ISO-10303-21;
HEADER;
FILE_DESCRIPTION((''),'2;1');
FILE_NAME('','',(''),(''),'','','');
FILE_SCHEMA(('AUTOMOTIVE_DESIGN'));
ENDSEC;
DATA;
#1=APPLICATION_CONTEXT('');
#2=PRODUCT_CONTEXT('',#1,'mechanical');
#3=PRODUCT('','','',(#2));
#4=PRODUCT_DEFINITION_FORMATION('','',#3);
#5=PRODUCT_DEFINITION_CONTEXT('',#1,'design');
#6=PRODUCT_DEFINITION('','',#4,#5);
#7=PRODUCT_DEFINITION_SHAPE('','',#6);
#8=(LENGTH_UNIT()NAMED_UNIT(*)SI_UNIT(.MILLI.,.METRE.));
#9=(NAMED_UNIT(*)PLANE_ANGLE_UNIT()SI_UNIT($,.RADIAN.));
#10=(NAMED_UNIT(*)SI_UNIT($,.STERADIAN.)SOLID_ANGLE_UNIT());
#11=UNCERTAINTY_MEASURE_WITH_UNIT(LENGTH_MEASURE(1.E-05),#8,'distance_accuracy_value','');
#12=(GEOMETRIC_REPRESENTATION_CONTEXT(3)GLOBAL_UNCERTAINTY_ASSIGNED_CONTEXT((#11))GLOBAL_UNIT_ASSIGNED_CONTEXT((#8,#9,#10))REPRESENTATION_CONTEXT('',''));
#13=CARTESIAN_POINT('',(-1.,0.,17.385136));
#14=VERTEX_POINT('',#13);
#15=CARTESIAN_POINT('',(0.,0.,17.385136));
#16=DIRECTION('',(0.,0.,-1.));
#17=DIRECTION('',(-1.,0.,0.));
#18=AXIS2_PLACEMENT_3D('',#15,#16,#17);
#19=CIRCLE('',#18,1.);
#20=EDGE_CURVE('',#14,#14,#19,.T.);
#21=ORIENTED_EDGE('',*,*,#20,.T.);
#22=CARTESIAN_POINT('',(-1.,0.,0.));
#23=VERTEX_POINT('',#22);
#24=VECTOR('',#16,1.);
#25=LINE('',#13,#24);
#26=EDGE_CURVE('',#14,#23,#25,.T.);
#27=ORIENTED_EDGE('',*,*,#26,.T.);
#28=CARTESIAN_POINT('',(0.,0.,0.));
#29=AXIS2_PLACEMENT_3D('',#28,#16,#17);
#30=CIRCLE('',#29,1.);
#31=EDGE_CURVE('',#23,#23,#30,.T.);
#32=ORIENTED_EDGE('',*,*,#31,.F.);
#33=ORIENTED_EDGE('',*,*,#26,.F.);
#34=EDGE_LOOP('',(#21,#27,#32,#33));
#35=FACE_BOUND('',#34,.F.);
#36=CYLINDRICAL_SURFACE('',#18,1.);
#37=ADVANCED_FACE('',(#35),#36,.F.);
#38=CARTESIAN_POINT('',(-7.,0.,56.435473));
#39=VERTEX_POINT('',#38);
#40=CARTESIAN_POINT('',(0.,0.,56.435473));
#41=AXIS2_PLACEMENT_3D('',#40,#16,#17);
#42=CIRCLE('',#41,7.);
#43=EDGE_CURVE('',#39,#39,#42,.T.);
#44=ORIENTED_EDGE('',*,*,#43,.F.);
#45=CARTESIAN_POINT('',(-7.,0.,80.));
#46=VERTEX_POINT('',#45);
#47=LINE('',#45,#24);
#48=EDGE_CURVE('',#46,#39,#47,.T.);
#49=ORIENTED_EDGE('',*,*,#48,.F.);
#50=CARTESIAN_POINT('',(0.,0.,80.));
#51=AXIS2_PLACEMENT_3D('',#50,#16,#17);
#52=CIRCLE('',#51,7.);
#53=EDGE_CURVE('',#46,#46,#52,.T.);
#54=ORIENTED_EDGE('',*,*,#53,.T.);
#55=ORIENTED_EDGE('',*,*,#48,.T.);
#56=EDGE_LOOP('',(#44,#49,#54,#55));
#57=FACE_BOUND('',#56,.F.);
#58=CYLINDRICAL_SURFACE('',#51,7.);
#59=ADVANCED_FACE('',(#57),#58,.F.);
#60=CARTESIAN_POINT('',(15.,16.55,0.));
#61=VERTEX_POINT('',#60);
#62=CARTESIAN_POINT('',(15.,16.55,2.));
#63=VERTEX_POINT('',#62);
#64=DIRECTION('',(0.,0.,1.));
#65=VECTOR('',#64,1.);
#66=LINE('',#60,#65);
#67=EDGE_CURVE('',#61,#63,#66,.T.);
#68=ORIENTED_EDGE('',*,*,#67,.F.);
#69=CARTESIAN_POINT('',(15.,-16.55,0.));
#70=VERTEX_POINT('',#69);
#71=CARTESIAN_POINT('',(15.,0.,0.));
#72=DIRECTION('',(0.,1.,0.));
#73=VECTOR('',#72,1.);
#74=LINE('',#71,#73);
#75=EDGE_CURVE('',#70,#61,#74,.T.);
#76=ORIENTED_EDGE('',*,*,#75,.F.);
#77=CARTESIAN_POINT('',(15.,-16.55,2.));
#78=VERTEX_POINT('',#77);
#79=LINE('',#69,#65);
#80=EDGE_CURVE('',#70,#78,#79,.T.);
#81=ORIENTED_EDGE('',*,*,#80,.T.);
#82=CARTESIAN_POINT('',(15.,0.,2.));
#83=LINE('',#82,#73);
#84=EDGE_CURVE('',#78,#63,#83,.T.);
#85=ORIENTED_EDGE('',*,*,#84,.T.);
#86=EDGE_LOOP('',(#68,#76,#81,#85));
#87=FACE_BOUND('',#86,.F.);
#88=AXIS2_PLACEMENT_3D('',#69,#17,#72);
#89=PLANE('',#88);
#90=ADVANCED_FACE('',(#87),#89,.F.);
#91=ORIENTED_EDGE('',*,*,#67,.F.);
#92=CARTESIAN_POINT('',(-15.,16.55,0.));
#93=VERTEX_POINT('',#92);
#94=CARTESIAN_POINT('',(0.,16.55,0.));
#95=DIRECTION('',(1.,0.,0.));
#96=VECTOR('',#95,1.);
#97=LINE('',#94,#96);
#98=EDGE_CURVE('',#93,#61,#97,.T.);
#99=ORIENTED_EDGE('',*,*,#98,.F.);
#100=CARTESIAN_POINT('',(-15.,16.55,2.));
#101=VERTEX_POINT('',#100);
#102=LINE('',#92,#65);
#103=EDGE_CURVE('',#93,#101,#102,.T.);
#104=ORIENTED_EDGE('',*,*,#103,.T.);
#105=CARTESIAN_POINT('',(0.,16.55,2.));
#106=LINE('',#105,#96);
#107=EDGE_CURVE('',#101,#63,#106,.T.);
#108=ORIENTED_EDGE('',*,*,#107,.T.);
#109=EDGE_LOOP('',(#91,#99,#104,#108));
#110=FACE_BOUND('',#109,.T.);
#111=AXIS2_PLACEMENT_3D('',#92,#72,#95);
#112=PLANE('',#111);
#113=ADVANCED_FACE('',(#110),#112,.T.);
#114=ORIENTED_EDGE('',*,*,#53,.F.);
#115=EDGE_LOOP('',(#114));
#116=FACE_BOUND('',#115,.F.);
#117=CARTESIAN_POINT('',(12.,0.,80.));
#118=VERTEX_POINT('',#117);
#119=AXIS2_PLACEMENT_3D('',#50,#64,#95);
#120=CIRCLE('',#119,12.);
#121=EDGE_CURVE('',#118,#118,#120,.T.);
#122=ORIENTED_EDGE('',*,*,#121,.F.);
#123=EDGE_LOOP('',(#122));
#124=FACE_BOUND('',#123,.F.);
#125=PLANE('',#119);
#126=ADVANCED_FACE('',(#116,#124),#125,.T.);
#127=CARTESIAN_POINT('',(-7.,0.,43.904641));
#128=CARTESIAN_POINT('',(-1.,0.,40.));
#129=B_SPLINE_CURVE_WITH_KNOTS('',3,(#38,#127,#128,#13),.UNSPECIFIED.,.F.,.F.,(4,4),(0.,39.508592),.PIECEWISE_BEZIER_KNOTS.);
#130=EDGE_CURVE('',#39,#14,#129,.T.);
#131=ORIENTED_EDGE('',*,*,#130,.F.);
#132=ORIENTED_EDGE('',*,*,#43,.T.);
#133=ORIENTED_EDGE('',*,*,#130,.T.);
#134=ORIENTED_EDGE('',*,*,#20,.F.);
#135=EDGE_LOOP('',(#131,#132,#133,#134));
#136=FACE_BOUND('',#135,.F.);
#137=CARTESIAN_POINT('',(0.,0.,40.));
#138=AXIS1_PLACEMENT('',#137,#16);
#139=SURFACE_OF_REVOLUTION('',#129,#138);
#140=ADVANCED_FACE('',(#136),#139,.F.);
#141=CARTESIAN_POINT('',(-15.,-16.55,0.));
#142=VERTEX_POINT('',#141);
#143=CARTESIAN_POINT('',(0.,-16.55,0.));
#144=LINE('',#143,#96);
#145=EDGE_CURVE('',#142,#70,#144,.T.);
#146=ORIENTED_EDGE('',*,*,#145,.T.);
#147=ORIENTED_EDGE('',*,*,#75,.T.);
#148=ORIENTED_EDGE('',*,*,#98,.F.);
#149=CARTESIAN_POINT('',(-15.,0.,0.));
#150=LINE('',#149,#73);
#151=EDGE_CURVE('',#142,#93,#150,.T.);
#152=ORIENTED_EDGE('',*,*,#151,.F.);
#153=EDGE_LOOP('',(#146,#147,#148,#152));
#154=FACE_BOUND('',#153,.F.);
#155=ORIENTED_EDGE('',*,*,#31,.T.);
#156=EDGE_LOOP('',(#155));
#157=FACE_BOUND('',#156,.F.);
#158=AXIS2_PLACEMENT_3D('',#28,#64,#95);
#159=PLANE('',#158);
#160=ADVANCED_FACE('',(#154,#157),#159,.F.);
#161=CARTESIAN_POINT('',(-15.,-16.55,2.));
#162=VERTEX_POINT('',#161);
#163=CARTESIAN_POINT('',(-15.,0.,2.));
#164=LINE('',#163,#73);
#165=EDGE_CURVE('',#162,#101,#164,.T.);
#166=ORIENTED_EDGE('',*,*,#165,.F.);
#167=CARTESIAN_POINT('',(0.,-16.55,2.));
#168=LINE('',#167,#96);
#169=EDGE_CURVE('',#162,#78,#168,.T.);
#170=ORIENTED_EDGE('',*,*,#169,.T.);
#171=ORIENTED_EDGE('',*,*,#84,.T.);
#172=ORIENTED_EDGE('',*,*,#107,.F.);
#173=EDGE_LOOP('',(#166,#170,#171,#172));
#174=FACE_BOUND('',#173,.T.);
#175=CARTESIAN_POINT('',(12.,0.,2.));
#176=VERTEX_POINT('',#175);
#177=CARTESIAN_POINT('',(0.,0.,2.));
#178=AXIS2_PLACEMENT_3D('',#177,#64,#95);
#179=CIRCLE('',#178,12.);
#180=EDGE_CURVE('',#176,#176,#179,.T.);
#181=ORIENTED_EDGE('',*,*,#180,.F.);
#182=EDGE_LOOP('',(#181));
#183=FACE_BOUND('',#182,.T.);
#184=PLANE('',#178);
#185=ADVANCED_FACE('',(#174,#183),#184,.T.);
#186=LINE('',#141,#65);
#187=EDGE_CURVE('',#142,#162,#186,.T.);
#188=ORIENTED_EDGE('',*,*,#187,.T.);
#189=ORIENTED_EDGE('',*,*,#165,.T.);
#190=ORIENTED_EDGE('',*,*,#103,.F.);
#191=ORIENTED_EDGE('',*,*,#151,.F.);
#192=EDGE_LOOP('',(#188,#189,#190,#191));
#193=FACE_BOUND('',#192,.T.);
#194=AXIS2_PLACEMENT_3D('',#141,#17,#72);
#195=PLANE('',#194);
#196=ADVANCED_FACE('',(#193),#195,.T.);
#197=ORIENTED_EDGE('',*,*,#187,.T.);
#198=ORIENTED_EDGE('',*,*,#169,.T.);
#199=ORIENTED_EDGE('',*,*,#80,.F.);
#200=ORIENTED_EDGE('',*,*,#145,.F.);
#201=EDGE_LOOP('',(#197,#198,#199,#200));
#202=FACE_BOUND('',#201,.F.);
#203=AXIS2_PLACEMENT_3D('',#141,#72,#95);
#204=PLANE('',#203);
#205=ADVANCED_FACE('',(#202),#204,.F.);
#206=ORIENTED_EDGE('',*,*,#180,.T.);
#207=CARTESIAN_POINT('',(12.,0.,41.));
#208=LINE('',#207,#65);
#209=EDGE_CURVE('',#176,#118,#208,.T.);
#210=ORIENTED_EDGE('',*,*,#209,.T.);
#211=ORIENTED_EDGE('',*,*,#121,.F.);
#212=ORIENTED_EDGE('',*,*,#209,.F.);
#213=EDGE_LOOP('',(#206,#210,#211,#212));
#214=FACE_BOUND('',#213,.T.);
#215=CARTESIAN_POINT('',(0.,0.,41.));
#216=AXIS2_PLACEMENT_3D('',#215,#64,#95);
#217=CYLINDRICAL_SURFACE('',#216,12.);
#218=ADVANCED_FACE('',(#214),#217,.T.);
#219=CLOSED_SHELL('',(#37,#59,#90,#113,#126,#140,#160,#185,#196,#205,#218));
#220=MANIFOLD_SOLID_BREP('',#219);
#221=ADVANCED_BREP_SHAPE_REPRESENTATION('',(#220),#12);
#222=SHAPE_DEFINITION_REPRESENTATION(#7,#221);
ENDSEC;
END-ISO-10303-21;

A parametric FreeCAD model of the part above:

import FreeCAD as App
import Part
import Sketcher
Q = App.Units.Quantity


def add_polygon(sketch, points):
    """Adds a closed chain of lines whose ends are joined by coincident constraints."""
    first, n = sketch.GeometryCount, len(points)
    for a, b in zip(points, points[1:] + points[:1]):
        sketch.addGeometry(Part.LineSegment(App.Vector(*a, 0), App.Vector(*b, 0)), False)
    for i in range(n):
        sketch.addConstraint(Sketcher.Constraint("Coincident", first + i, 2, first + (i + 1) % n, 1))

doc = App.newDocument("Part")
body = doc.addObject("PartDesign::Body", "Body")

# Sketch on XY plane
sketch1 = body.newObject("Sketcher::SketchObject", "Sketch")
sketch1.AttachmentSupport = (doc.getObject("XY_Plane"), [""])
sketch1.MapMode = "FlatFace"
add_polygon(sketch1, [(-15, 17), (-15, -17), (15, -17), (15, 17)])  # lines 0-3
sketch1.addConstraint([
    Sketcher.Constraint("Vertical", 0),
    Sketcher.Constraint("Horizontal", 1),
    Sketcher.Constraint("Vertical", 2),
    Sketcher.Constraint("Horizontal", 3),
    Sketcher.Constraint("Symmetric", 0, 2, 2, 2, -1, 1),
    Sketcher.Constraint("DistanceX", 1, 1, 1, 2, Q("30 mm")),
    Sketcher.Constraint("DistanceY", 0, 2, 0, 1, Q("33.1 mm")),
])
pad1 = body.newObject("PartDesign::Pad", "Pad")
pad1.Profile = sketch1
pad1.Length = 2

# Sketch on XZ plane
sketch2 = body.newObject("Sketcher::SketchObject", "Sketch001")
sketch2.AttachmentSupport = (doc.getObject("XZ_Plane"), [""])
sketch2.MapMode = "FlatFace"
add_polygon(sketch2, [(0, 80), (0, 2), (12, 2), (12, 80)])  # lines 0-3
sketch2.addConstraint([
    Sketcher.Constraint("Vertical", 0),
    Sketcher.Constraint("Horizontal", 1),
    Sketcher.Constraint("Vertical", 2),
    Sketcher.Constraint("Horizontal", 3),
    Sketcher.Constraint("PointOnObject", 0, 2, -2),
    Sketcher.Constraint("DistanceX", 1, 1, 1, 2, Q("12 mm")),
    Sketcher.Constraint("DistanceY", 0, 2, 0, 1, Q("78 mm")),
    Sketcher.Constraint("DistanceY", -1, 1, 0, 2, Q("2 mm")),
])
revolution = body.newObject("PartDesign::Revolution", "Revolution")
revolution.Profile = sketch2
revolution.ReferenceAxis = (sketch2, ["V_Axis"])
revolution.Angle = 360

# Sketch on XZ plane
sketch3 = body.newObject("Sketcher::SketchObject", "Sketch002")
sketch3.AttachmentSupport = (doc.getObject("XZ_Plane"), [""])
sketch3.MapMode = "FlatFace"
sketch3.addGeometry([
    Part.LineSegment(App.Vector(0, 0, 0), App.Vector(0, 80, 0)),  # 0
    Part.LineSegment(App.Vector(0, 80, 0), App.Vector(-7, 80, 0)),  # 1
    Part.LineSegment(App.Vector(-7, 80, 0), App.Vector(-7, 56.435473, 0)),  # 2
    Part.BSplineCurve([App.Vector(-7, 56.435473, 0), App.Vector(-7, 43.904641, 0), App.Vector(-1, 40, 0), App.Vector(-1, 17.385136, 0)], [4, 4], [0, 39.508592], False, 3, [1, 1, 1, 1], False),  # 3
    Part.LineSegment(App.Vector(-1, 17.385136, 0), App.Vector(-1, 0, 0)),  # 4
    Part.LineSegment(App.Vector(-1, 0, 0), App.Vector(0, 0, 0)),  # 5
], False)
sketch3.addConstraint([
    Sketcher.Constraint("Block", 3),
    Sketcher.Constraint("Coincident", 0, 2, 1, 1),
    Sketcher.Constraint("Coincident", 1, 2, 2, 1),
    Sketcher.Constraint("Coincident", 2, 2, 3, 1),
    Sketcher.Constraint("Coincident", 3, 2, 4, 1),
    Sketcher.Constraint("Coincident", 4, 2, 5, 1),
    Sketcher.Constraint("Coincident", 5, 2, 0, 1),
    Sketcher.Constraint("Vertical", 0),
    Sketcher.Constraint("Horizontal", 1),
    Sketcher.Constraint("Vertical", 2),
    Sketcher.Constraint("Vertical", 4),
    Sketcher.Constraint("Horizontal", 5),
    Sketcher.Constraint("Coincident", 5, 2, -1, 1),
    Sketcher.Constraint("DistanceY", 0, 1, 0, 2, Q("80 mm")),
])
groove = body.newObject("PartDesign::Groove", "Groove")
groove.Profile = sketch3
groove.ReferenceAxis = (sketch3, ["V_Axis"])
groove.Angle = 360

doc.recompute()
